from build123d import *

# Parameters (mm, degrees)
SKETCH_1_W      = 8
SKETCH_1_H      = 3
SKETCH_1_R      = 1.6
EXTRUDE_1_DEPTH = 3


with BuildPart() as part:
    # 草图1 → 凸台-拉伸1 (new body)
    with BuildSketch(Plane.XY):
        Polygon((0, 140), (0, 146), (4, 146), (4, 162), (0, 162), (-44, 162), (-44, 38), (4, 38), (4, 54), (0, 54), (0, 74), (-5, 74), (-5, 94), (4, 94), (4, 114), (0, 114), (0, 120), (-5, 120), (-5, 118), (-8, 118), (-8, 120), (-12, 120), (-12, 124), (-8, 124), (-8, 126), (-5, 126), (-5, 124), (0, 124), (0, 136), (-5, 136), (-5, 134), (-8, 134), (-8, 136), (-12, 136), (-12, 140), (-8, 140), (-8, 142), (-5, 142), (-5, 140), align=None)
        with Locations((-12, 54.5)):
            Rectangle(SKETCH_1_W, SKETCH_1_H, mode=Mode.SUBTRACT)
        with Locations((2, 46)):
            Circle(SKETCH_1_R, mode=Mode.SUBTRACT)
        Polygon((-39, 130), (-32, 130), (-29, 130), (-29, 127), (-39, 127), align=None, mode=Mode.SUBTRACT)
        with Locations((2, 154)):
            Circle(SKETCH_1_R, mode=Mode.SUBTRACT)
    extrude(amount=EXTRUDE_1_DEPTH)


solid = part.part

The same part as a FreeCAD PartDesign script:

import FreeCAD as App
import Part
import Sketcher

V = App.Vector
Q = App.Units.Quantity

doc = App.newDocument("Part")
body = doc.addObject("PartDesign::Body", "Body")

sketch1 = body.newObject("Sketcher::SketchObject", "Sketch")
sketch1.AttachmentSupport = (doc.getObject("XY_Plane"), [""])
sketch1.MapMode = "FlatFace"
sketch1.addGeometry([
    Part.LineSegment(V(0, 140, 0), V(0, 146, 0)),
    Part.LineSegment(V(0, 146, 0), V(4, 146, 0)),
    Part.LineSegment(V(4, 146, 0), V(4, 162, 0)),
    Part.LineSegment(V(4, 162, 0), V(-44, 162, 0)),
    Part.LineSegment(V(-44, 162, 0), V(-44, 38, 0)),
    Part.LineSegment(V(-44, 38, 0), V(4, 38, 0)),
    Part.LineSegment(V(4, 38, 0), V(4, 54, 0)),
    Part.LineSegment(V(4, 54, 0), V(0, 54, 0)),
    Part.LineSegment(V(0, 54, 0), V(0, 74, 0)),
    Part.LineSegment(V(0, 74, 0), V(-5, 74, 0)),
    Part.LineSegment(V(-5, 74, 0), V(-5, 94, 0)),
    Part.LineSegment(V(-5, 94, 0), V(4, 94, 0)),
    Part.LineSegment(V(4, 94, 0), V(4, 114, 0)),
    Part.LineSegment(V(4, 114, 0), V(0, 114, 0)),
    Part.LineSegment(V(0, 114, 0), V(0, 120, 0)),
    Part.LineSegment(V(0, 120, 0), V(-5, 120, 0)),
    Part.LineSegment(V(-5, 120, 0), V(-5, 118, 0)),
    Part.LineSegment(V(-5, 118, 0), V(-8, 118, 0)),
    Part.LineSegment(V(-8, 118, 0), V(-8, 120, 0)),
    Part.LineSegment(V(-8, 120, 0), V(-12, 120, 0)),
    Part.LineSegment(V(-12, 120, 0), V(-12, 124, 0)),
    Part.LineSegment(V(-12, 124, 0), V(-8, 124, 0)),
    Part.LineSegment(V(-8, 124, 0), V(-8, 126, 0)),
    Part.LineSegment(V(-8, 126, 0), V(-5, 126, 0)),
    Part.LineSegment(V(-5, 126, 0), V(-5, 124, 0)),
    Part.LineSegment(V(-5, 124, 0), V(0, 124, 0)),
    Part.LineSegment(V(0, 124, 0), V(0, 136, 0)),
    Part.LineSegment(V(0, 136, 0), V(-5, 136, 0)),
    Part.LineSegment(V(-5, 136, 0), V(-5, 134, 0)),
    Part.LineSegment(V(-5, 134, 0), V(-8, 134, 0)),
    Part.LineSegment(V(-8, 134, 0), V(-8, 136, 0)),
    Part.LineSegment(V(-8, 136, 0), V(-12, 136, 0)),
    Part.LineSegment(V(-12, 136, 0), V(-12, 140, 0)),
    Part.LineSegment(V(-12, 140, 0), V(-8, 140, 0)),
    Part.LineSegment(V(-8, 140, 0), V(-8, 142, 0)),
    Part.LineSegment(V(-8, 142, 0), V(-5, 142, 0)),
    Part.LineSegment(V(-5, 142, 0), V(-5, 140, 0)),
    Part.LineSegment(V(-5, 140, 0), V(0, 140, 0)),
    Part.LineSegment(V(-8, 53, 0), V(-16, 53, 0)),
    Part.LineSegment(V(-16, 53, 0), V(-16, 56, 0)),
    Part.LineSegment(V(-16, 56, 0), V(-8, 56, 0)),
    Part.LineSegment(V(-8, 56, 0), V(-8, 53, 0)),
    Part.Circle(V(2, 46, 0), V(0, 0, 1), 1.6),
    Part.LineSegment(V(-39, 127, 0), V(-39, 130, 0)),
    Part.LineSegment(V(-39, 130, 0), V(-29, 130, 0)),
    Part.LineSegment(V(-29, 130, 0), V(-29, 127, 0)),
    Part.LineSegment(V(-29, 127, 0), V(-39, 127, 0)),
    Part.Circle(V(2, 154, 0), V(0, 0, 1), 1.6),
], False)
sketch1.addConstraint([
    Sketcher.Constraint("Coincident", 0, 2, 1, 1),
    Sketcher.Constraint("Coincident", 1, 2, 2, 1),
    Sketcher.Constraint("Coincident", 2, 2, 3, 1),
    Sketcher.Constraint("Coincident", 3, 2, 4, 1),
    Sketcher.Constraint("Coincident", 4, 2, 5, 1),
    Sketcher.Constraint("Coincident", 5, 2, 6, 1),
    Sketcher.Constraint("Coincident", 6, 2, 7, 1),
    Sketcher.Constraint("Coincident", 7, 2, 8, 1),
    Sketcher.Constraint("Coincident", 8, 2, 9, 1),
    Sketcher.Constraint("Coincident", 9, 2, 10, 1),
    Sketcher.Constraint("Coincident", 10, 2, 11, 1),
    Sketcher.Constraint("Coincident", 11, 2, 12, 1),
    Sketcher.Constraint("Coincident", 12, 2, 13, 1),
    Sketcher.Constraint("Coincident", 13, 2, 14, 1),
    Sketcher.Constraint("Coincident", 14, 2, 15, 1),
    Sketcher.Constraint("Coincident", 15, 2, 16, 1),
    Sketcher.Constraint("Coincident", 16, 2, 17, 1),
    Sketcher.Constraint("Coincident", 17, 2, 18, 1),
    Sketcher.Constraint("Coincident", 18, 2, 19, 1),
    Sketcher.Constraint("Coincident", 19, 2, 20, 1),
    Sketcher.Constraint("Coincident", 20, 2, 21, 1),
    Sketcher.Constraint("Coincident", 21, 2, 22, 1),
    Sketcher.Constraint("Coincident", 22, 2, 23, 1),
    Sketcher.Constraint("Coincident", 23, 2, 24, 1),
    Sketcher.Constraint("Coincident", 24, 2, 25, 1),
    Sketcher.Constraint("Coincident", 25, 2, 26, 1),
    Sketcher.Constraint("Coincident", 26, 2, 27, 1),
    Sketcher.Constraint("Coincident", 27, 2, 28, 1),
    Sketcher.Constraint("Coincident", 28, 2, 29, 1),
    Sketcher.Constraint("Coincident", 29, 2, 30, 1),
    Sketcher.Constraint("Coincident", 30, 2, 31, 1),
    Sketcher.Constraint("Coincident", 31, 2, 32, 1),
    Sketcher.Constraint("Coincident", 32, 2, 33, 1),
    Sketcher.Constraint("Coincident", 33, 2, 34, 1),
    Sketcher.Constraint("Coincident", 34, 2, 35, 1),
    Sketcher.Constraint("Coincident", 35, 2, 36, 1),
    Sketcher.Constraint("Coincident", 36, 2, 37, 1),
    Sketcher.Constraint("Coincident", 37, 2, 0, 1),
    Sketcher.Constraint("Coincident", 38, 2, 39, 1),
    Sketcher.Constraint("Coincident", 39, 2, 40, 1),
    Sketcher.Constraint("Coincident", 40, 2, 41, 1),
    Sketcher.Constraint("Coincident", 41, 2, 38, 1),
    Sketcher.Constraint("Coincident", 43, 2, 44, 1),
    Sketcher.Constraint("Coincident", 44, 2, 45, 1),
    Sketcher.Constraint("Coincident", 45, 2, 46, 1),
    Sketcher.Constraint("Coincident", 46, 2, 43, 1),
    Sketcher.Constraint("Vertical", 0),
    Sketcher.Constraint("Horizontal", 1),
    Sketcher.Constraint("Vertical", 2),
    Sketcher.Constraint("Horizontal", 3),
    Sketcher.Constraint("Vertical", 4),
    Sketcher.Constraint("Horizontal", 5),
    Sketcher.Constraint("Vertical", 6),
    Sketcher.Constraint("Horizontal", 7),
    Sketcher.Constraint("Vertical", 8),
    Sketcher.Constraint("Horizontal", 9),
    Sketcher.Constraint("Vertical", 10),
    Sketcher.Constraint("Horizontal", 11),
    Sketcher.Constraint("Vertical", 12),
    Sketcher.Constraint("Horizontal", 13),
    Sketcher.Constraint("Vertical", 14),
    Sketcher.Constraint("Horizontal", 15),
    Sketcher.Constraint("Vertical", 16),
    Sketcher.Constraint("Horizontal", 17),
    Sketcher.Constraint("Vertical", 18),
    Sketcher.Constraint("Horizontal", 19),
    Sketcher.Constraint("Vertical", 20),
    Sketcher.Constraint("Horizontal", 21),
    Sketcher.Constraint("Vertical", 22),
    Sketcher.Constraint("Horizontal", 23),
    Sketcher.Constraint("Vertical", 24),
    Sketcher.Constraint("Horizontal", 25),
    Sketcher.Constraint("Vertical", 26),
    Sketcher.Constraint("Horizontal", 27),
    Sketcher.Constraint("Vertical", 28),
    Sketcher.Constraint("Horizontal", 29),
    Sketcher.Constraint("Vertical", 30),
    Sketcher.Constraint("Horizontal", 31),
    Sketcher.Constraint("Vertical", 32),
    Sketcher.Constraint("Horizontal", 33),
    Sketcher.Constraint("Vertical", 34),
    Sketcher.Constraint("Horizontal", 35),
    Sketcher.Constraint("Vertical", 36),
    Sketcher.Constraint("Horizontal", 37),
    Sketcher.Constraint("Horizontal", 38),
    Sketcher.Constraint("Vertical", 39),
    Sketcher.Constraint("Horizontal", 40),
    Sketcher.Constraint("Vertical", 41),
    Sketcher.Constraint("Vertical", 43),
    Sketcher.Constraint("Horizontal", 44),
    Sketcher.Constraint("Vertical", 45),
    Sketcher.Constraint("Horizontal", 46),
    Sketcher.Constraint("Equal", 42, 47),
    Sketcher.Constraint("PointOnObject", 0, 2, -2),
    Sketcher.Constraint("PointOnObject", 7, 2, -2),
    Sketcher.Constraint("PointOnObject", 13, 2, -2),
    Sketcher.Constraint("PointOnObject", 25, 2, -2),
    Sketcher.Constraint("Horizontal", 15, 2, 18, 2),
    Sketcher.Constraint("Horizontal", 21, 2, 24, 2),
    Sketcher.Constraint("Horizontal", 27, 2, 30, 2),
    Sketcher.Constraint("Horizontal", 33, 2, 36, 2),
    Sketcher.Constraint("Vertical", 42, 3, 47, 3),
    Sketcher.Constraint("Vertical", 2, 2, 5, 2),
    Sketcher.Constraint("Vertical", 6, 2, 11, 2),
    Sketcher.Constraint("Vertical", 10, 2, 15, 2),
    Sketcher.Constraint("Vertical", 18, 2, 21, 2),
    Sketcher.Constraint("Vertical", 16, 2, 23, 2),
    Sketcher.Constraint("Vertical", 24, 2, 27, 2),
    Sketcher.Constraint("Vertical", 22, 2, 29, 2),
    Sketcher.Constraint("Vertical", 20, 2, 31, 2),
    Sketcher.Constraint("Vertical", 30, 2, 33, 2),
    Sketcher.Constraint("Vertical", 28, 2, 35, 2),
    Sketcher.Constraint("Vertical", 34, 2, 40, 2),
    Sketcher.Constraint("Equal", 13, 19),
    Sketcher.Constraint("Equal", 2, 6),
    Sketcher.Constraint("Equal", 8, 10),
    Sketcher.Constraint("Equal", 10, 12),
    Sketcher.Constraint("Equal", 0, 14),
    Sketcher.Constraint("Equal", 33, 20),
    Sketcher.Constraint("Equal", 18, 22),
    Sketcher.Constraint("Equal", 24, 28),
    Sketcher.Constraint("Equal", 20, 32),
    Sketcher.Constraint("Equal", 30, 34),
    Sketcher.Constraint("Equal", 35, 39),
    Sketcher.Constraint("Equal", 41, 43),
    Sketcher.Constraint("Diameter", 42, Q("3.2 mm")),
    Sketcher.Constraint("DistanceX", 1, 1, 1, 2, Q("4 mm")),
    Sketcher.Constraint("DistanceX", 3, 2, 3, 1, Q("48 mm")),
    Sketcher.Constraint("DistanceX", 9, 2, 9, 1, Q("5 mm")),
    Sketcher.Constraint("DistanceX", 17, 2, 17, 1, Q("3 mm")),
    Sketcher.Constraint("DistanceX", 38, 2, 38, 1, Q("8 mm")),
    Sketcher.Constraint("DistanceX", 44, 1, 44, 2, Q("10 mm")),
    Sketcher.Constraint("DistanceY", 0, 1, 0, 2, Q("6 mm")),
    Sketcher.Constraint("DistanceY", 2, 1, 2, 2, Q("16 mm")),
    Sketcher.Constraint("DistanceY", 4, 2, 4, 1, Q("124 mm")),
    Sketcher.Constraint("DistanceY", 8, 1, 8, 2, Q("20 mm")),
    Sketcher.Constraint("DistanceY", 16, 2, 16, 1, Q("2 mm")),
    Sketcher.Constraint("DistanceX", -1, 1, 42, 3, Q("2 mm")),
    Sketcher.Constraint("DistanceY", -1, 1, 42, 3, Q("46 mm")),
    Sketcher.Constraint("DistanceY", -1, 1, 47, 3, Q("154 mm")),
    Sketcher.Constraint("DistanceY", -1, 1, 0, 2, Q("146 mm")),
    Sketcher.Constraint("DistanceY", -1, 1, 38, 2, Q("53 mm")),
    Sketcher.Constraint("DistanceX", 43, 2, -1, 1, Q("39 mm")),
    Sketcher.Constraint("DistanceY", -1, 1, 43, 2, Q("130 mm")),
])
pad1 = body.newObject("PartDesign::Pad", "Pad")
pad1.Profile = sketch1
pad1.Length = 3

doc.recompute()
